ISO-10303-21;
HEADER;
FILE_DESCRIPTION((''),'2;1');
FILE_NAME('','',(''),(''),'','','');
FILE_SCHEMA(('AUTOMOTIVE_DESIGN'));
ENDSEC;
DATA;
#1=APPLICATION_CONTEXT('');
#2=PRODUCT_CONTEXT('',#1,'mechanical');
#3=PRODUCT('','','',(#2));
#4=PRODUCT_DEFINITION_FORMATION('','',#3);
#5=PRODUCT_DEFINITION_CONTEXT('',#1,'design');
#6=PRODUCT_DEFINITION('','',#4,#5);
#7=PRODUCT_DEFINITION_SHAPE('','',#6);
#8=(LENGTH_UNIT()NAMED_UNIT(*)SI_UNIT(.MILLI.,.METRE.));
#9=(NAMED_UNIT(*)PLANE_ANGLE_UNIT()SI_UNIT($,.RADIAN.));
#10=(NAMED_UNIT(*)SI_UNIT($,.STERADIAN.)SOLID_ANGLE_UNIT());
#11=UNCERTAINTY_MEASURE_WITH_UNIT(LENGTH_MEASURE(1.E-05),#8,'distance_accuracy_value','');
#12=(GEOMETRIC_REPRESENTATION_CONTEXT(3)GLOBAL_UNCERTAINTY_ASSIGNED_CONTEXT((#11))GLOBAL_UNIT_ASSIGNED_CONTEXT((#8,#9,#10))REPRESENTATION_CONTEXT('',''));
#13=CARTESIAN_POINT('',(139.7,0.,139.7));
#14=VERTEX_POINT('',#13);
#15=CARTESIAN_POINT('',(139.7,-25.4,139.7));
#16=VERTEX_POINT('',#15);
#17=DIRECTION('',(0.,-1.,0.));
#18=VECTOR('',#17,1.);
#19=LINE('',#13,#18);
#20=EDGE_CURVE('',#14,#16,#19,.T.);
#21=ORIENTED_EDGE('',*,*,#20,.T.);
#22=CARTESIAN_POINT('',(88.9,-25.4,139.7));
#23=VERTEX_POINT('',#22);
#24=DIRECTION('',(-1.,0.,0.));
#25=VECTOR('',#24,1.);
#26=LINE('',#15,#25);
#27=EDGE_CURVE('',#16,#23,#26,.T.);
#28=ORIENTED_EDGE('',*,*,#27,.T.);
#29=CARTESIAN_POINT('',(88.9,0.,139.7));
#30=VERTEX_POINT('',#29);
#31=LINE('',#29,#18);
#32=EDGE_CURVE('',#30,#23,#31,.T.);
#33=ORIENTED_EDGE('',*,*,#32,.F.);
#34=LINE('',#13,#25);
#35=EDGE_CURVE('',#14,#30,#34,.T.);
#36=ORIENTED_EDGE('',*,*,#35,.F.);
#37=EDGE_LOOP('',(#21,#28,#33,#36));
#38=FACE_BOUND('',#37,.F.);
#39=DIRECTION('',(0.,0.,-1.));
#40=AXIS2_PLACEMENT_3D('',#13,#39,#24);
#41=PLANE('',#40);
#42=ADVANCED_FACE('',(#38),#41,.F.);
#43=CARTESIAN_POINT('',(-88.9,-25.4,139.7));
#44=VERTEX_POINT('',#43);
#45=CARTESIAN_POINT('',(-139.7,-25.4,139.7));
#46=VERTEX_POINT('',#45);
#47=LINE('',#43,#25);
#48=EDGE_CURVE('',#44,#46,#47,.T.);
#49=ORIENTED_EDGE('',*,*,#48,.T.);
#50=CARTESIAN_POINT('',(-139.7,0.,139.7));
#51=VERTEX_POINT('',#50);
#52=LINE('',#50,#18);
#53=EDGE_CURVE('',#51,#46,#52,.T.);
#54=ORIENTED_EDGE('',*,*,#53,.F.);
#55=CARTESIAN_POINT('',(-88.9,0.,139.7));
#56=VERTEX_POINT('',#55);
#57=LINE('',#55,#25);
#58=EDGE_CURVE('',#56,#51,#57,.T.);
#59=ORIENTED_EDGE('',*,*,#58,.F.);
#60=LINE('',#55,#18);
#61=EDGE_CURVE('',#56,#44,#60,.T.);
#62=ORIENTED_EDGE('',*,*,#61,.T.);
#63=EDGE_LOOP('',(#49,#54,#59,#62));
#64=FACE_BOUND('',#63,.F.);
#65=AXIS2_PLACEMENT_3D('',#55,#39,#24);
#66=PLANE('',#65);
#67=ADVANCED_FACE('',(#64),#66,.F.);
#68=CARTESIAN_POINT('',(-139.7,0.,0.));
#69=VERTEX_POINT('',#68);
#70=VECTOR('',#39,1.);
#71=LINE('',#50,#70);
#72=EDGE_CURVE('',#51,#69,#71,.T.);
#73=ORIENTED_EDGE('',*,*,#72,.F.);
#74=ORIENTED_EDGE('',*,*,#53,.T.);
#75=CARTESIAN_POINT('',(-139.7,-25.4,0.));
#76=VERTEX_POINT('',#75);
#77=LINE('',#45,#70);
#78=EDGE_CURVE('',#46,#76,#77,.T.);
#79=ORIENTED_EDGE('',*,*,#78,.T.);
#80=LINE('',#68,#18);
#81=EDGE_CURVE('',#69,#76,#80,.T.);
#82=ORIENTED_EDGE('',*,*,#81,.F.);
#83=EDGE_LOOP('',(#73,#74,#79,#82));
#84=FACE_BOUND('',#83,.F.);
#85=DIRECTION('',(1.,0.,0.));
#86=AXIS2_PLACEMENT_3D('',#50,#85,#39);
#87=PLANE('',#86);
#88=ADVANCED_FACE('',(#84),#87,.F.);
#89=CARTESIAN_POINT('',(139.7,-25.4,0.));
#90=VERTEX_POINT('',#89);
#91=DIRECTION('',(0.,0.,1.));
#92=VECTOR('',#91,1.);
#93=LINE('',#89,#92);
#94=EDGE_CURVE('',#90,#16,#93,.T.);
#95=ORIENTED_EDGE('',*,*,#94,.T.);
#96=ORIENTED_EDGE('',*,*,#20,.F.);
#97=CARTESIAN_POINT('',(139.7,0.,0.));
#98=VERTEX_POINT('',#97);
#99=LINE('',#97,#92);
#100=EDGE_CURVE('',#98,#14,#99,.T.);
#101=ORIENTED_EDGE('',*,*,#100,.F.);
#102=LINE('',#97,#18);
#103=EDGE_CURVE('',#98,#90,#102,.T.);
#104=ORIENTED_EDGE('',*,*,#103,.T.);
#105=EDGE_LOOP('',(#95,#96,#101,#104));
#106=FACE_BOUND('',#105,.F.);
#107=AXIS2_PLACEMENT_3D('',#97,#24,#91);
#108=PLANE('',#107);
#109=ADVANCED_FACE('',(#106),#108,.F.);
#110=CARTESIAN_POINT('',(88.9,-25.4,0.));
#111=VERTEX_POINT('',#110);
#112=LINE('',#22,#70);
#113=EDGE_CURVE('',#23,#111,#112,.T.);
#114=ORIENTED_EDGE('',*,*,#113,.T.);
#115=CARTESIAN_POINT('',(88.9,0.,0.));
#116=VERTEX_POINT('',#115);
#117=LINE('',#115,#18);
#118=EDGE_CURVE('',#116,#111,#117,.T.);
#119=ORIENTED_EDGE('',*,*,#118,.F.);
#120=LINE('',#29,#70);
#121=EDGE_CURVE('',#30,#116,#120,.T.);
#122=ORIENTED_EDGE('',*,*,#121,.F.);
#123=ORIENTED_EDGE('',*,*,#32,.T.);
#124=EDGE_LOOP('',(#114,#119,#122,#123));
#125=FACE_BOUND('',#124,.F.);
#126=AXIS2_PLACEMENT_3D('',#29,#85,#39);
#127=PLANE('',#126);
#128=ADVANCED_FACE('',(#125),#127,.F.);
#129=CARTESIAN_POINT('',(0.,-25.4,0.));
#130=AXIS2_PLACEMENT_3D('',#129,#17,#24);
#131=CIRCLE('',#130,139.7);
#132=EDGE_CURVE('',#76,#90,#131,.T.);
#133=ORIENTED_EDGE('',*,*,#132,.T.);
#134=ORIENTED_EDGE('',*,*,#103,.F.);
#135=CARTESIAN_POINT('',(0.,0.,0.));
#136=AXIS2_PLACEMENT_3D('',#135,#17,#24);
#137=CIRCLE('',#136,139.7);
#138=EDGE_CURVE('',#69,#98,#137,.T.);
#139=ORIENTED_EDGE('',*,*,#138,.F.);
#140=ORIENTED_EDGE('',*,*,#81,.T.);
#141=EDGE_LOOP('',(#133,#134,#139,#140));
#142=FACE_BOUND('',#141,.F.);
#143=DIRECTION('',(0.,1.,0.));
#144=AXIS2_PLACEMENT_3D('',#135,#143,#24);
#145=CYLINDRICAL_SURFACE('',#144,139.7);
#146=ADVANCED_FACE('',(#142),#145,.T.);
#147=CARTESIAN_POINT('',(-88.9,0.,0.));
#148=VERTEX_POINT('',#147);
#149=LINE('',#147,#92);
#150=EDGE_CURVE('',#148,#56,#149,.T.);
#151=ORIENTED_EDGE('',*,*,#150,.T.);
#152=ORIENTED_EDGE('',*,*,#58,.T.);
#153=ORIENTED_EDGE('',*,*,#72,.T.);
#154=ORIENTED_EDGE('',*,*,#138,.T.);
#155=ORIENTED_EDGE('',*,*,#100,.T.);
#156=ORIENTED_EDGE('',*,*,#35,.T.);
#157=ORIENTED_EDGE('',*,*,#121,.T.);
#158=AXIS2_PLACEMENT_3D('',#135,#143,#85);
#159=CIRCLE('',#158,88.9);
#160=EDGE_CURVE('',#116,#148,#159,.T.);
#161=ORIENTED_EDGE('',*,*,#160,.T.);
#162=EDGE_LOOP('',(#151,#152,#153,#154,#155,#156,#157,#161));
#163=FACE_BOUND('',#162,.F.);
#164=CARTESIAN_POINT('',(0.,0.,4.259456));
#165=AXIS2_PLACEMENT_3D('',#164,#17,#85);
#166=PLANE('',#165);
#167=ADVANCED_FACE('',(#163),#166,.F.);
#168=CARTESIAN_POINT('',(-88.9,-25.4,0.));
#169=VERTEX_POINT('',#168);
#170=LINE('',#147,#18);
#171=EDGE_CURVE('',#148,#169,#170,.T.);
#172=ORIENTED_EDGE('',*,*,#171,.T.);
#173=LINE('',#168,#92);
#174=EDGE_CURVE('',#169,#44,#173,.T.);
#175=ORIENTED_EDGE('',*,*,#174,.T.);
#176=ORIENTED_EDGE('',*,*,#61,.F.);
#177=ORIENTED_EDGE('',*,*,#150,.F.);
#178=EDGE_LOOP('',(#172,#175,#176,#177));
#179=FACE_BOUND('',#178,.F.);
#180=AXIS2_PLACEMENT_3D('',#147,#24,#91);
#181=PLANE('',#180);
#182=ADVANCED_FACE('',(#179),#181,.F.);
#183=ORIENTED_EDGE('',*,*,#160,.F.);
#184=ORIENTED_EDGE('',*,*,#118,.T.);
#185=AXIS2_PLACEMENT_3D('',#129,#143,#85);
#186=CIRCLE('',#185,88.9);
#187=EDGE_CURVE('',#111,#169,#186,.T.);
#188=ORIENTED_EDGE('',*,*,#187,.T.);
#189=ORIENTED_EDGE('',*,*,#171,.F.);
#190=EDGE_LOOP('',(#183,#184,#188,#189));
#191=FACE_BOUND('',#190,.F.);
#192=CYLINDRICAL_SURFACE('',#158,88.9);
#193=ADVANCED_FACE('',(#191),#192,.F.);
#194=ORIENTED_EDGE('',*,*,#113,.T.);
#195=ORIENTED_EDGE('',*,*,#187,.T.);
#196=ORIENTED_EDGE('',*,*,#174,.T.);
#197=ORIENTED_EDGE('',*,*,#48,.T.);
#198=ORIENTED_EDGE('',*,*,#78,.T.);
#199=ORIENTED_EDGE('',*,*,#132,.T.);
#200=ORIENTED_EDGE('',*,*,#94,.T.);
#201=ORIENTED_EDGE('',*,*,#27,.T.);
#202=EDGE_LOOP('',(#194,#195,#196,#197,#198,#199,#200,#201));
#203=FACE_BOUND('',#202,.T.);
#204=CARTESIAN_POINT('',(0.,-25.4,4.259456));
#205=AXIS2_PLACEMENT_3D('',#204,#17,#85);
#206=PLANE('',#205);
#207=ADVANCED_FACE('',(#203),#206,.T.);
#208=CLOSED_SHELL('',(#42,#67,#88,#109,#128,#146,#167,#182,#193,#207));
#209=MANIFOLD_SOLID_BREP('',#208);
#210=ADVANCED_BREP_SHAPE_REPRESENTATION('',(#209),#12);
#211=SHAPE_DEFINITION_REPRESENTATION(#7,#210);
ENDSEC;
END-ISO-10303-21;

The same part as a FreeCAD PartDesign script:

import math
import FreeCAD as App
import Part
import Sketcher
Q = App.Units.Quantity

doc = App.newDocument("Part")
body = doc.addObject("PartDesign::Body", "Body")

sketch1 = body.newObject("Sketcher::SketchObject", "Sketch")
sketch1.AttachmentSupport = (doc.getObject("XZ_Plane"), [""])
sketch1.MapMode = "FlatFace"
sketch1.addGeometry(Part.LineSegment(App.Vector(-139.7, 139.7, 0), App.Vector(-139.7, 0, 0)), False)
sketch1.addGeometry(Part.ArcOfCircle(Part.Circle(App.Vector(0, 0, 0), App.Vector(0, 0, 1), 139.7), math.radians(180), math.radians(360)), False)
sketch1.addGeometry(Part.LineSegment(App.Vector(139.7, 0, 0), App.Vector(139.7, 139.7, 0)), False)
sketch1.addGeometry(Part.LineSegment(App.Vector(139.7, 139.7, 0), App.Vector(88.9, 139.7, 0)), False)
sketch1.addGeometry(Part.LineSegment(App.Vector(88.9, 139.7, 0), App.Vector(88.9, 0, 0)), False)
sketch1.addGeometry(Part.ArcOfCircle(Part.Circle(App.Vector(0, 0, 0), App.Vector(0, 0, 1), 88.9), math.radians(180), math.radians(360)), False)
sketch1.addGeometry(Part.LineSegment(App.Vector(-88.9, 0, 0), App.Vector(-88.9, 139.7, 0)), False)
sketch1.addGeometry(Part.LineSegment(App.Vector(-88.9, 139.7, 0), App.Vector(-139.7, 139.7, 0)), False)
sketch1.addConstraint(Sketcher.Constraint("Tangent", 0, 2, 1, 1))
sketch1.addConstraint(Sketcher.Constraint("Tangent", 1, 2, 2, 1))
sketch1.addConstraint(Sketcher.Constraint("Coincident", 2, 2, 3, 1))
sketch1.addConstraint(Sketcher.Constraint("Coincident", 3, 2, 4, 1))
sketch1.addConstraint(Sketcher.Constraint("Tangent", 4, 2, 5, 2))
sketch1.addConstraint(Sketcher.Constraint("Tangent", 5, 1, 6, 1))
sketch1.addConstraint(Sketcher.Constraint("Coincident", 6, 2, 7, 1))
sketch1.addConstraint(Sketcher.Constraint("Coincident", 7, 2, 0, 1))
sketch1.addConstraint(Sketcher.Constraint("Vertical", 0))
sketch1.addConstraint(Sketcher.Constraint("Vertical", 2))
sketch1.addConstraint(Sketcher.Constraint("Horizontal", 3))
sketch1.addConstraint(Sketcher.Constraint("Vertical", 4))
sketch1.addConstraint(Sketcher.Constraint("Vertical", 6))
sketch1.addConstraint(Sketcher.Constraint("Horizontal", 7))
sketch1.addConstraint(Sketcher.Constraint("Coincident", 1, 3, -1, 1))
sketch1.addConstraint(Sketcher.Constraint("Coincident", 5, 3, -1, 1))
sketch1.addConstraint(Sketcher.Constraint("Horizontal", 3, 2, 6, 2))
sketch1.addConstraint(Sketcher.Constraint("Radius", 1, Q("5.5 in")))
sketch1.addConstraint(Sketcher.Constraint("Radius", 5, Q("3.5 in")))
sketch1.addConstraint(Sketcher.Constraint("DistanceY", 0, 2, 0, 1, Q("5.5 in")))
pad1 = body.newObject("PartDesign::Pad", "Pad")
pad1.Profile = sketch1
pad1.Length = Q("1 in")

doc.recompute()
